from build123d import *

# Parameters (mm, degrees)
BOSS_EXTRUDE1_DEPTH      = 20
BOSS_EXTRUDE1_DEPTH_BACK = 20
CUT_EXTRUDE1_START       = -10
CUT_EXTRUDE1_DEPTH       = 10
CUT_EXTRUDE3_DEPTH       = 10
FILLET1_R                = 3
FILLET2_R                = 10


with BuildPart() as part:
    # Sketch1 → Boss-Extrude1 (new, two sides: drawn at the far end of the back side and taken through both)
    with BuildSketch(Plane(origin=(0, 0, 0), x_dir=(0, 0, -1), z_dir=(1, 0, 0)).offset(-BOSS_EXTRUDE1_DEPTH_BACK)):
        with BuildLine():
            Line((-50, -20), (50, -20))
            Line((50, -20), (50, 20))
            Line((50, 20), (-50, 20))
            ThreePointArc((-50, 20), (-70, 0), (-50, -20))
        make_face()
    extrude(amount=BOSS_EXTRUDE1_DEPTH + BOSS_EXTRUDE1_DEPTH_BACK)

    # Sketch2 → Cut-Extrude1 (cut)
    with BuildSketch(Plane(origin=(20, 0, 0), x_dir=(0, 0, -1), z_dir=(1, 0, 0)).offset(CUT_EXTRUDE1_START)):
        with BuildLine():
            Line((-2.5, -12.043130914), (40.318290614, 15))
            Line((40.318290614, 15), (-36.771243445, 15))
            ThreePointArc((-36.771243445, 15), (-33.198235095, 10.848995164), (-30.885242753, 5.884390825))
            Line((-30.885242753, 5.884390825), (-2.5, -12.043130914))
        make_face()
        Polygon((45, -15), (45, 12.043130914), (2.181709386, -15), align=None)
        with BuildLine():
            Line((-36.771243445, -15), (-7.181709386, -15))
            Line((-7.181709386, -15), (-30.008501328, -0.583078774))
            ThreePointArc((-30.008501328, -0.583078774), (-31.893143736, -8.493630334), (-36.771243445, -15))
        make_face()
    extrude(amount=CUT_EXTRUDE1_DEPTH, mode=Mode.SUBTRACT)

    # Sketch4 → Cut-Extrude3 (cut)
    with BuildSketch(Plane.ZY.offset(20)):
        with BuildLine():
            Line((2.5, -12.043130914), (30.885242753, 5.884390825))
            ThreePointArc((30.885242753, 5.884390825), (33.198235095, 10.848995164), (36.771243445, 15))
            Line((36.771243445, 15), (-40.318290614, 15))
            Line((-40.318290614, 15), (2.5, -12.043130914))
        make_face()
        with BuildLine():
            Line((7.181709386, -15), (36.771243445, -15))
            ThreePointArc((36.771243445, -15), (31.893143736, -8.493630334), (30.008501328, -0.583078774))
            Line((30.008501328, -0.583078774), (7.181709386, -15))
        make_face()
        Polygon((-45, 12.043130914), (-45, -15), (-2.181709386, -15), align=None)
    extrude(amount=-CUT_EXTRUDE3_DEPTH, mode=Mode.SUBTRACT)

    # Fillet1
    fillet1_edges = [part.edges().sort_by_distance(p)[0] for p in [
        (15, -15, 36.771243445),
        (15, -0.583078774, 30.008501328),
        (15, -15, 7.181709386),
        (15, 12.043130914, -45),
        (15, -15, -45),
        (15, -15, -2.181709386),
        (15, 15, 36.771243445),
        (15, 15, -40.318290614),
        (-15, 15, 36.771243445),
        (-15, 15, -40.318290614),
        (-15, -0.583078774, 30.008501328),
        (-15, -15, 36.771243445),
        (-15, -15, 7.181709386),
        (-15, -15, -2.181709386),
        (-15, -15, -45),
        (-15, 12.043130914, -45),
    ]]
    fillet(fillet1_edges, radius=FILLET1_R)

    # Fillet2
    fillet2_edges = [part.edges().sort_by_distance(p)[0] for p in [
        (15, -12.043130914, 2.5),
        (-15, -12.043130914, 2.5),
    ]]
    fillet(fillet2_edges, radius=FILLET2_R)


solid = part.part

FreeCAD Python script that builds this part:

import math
import FreeCAD as App
import Part
import Sketcher
from FreeCAD import Vector


def edges_at(feature, points):
    """Names of the edges that pass closest to the given points."""
    edges = feature.Shape.Edges
    near = lambda p: min(range(len(edges)), key=lambda i: edges[i].distToShape(Part.Vertex(*p))[0])
    return sorted({f"Edge{near(p) + 1}" for p in points})


def add_polygon(sketch, points):
    """Adds a closed chain of lines whose ends are joined by coincident constraints."""
    first, n = sketch.GeometryCount, len(points)
    for a, b in zip(points, points[1:] + points[:1]):
        sketch.addGeometry(Part.LineSegment(App.Vector(*a, 0), App.Vector(*b, 0)), False)
    for i in range(n):
        sketch.addConstraint(Sketcher.Constraint("Coincident", first + i, 2, first + (i + 1) % n, 1))

doc = App.newDocument("Part")
body = doc.addObject("PartDesign::Body", "Body")

# Sketch on YZ plane
sketch1 = doc.addObject("Sketcher::SketchObject", "Sketch")
body.addObject(sketch1)
sketch1.AttachmentSupport = (doc.YZ_Plane, [""])
sketch1.MapMode = "FlatFace"
sketch1.addGeometry([
    Part.LineSegment(Vector(-20, 50, 0), Vector(-20, -50, 0)),
    Part.LineSegment(Vector(-20, -50, 0), Vector(20, -50, 0)),
    Part.LineSegment(Vector(20, -50, 0), Vector(20, 50, 0)),
    Part.ArcOfCircle(Part.Circle(Vector(0, 50, 0), Vector(0, 0, 1), 20), math.radians(0), math.radians(180)),
], False)
sketch1.addConstraint([
    Sketcher.Constraint("Coincident", 0, 2, 1, 1),
    Sketcher.Constraint("Coincident", 1, 2, 2, 1),
    Sketcher.Constraint("Tangent", 2, 2, 3, 1),
    Sketcher.Constraint("Tangent", 3, 2, 0, 1),
    Sketcher.Constraint("Vertical", 0),
    Sketcher.Constraint("Horizontal", 1),
    Sketcher.Constraint("Vertical", 2),
    Sketcher.Constraint("Symmetric", 0, 2, 2, 2, -1, 1),
    Sketcher.Constraint("Radius", 3, 20.0),
    Sketcher.Constraint("DistanceY", 0, 2, 0, 1, 100.0),
])
pad1 = doc.addObject("PartDesign::Pad", "Pad")
body.addObject(pad1)
pad1.Profile = sketch1
pad1.Type = "TwoLengths"
pad1.Length = 20
pad1.Length2 = 20

# Sketch on YZ plane
sketch2 = doc.addObject("Sketcher::SketchObject", "Sketch001")
body.addObject(sketch2)
sketch2.AttachmentSupport = (doc.YZ_Plane, [""])
sketch2.MapMode = "FlatFace"
sketch2.AttachmentOffset = App.Placement(Vector(0, 0, 10), App.Rotation())
sketch2.addGeometry(Part.LineSegment(Vector(-12.043131, 2.5, 0), Vector(15, -40.318291, 0)), False)  # 0
sketch2.addGeometry(Part.LineSegment(Vector(15, -40.318291, 0), Vector(15, 36.771243, 0)), False)  # 1
sketch2.addGeometry(Part.ArcOfCircle(Part.Circle(Vector(0, 50, 0), Vector(0, 0, 1), 20), math.radians(-72.889256), math.radians(-41.409622)), False)  # 2
sketch2.addGeometry(Part.LineSegment(Vector(5.884391, 30.885243, 0), Vector(-12.043131, 2.5, 0)), False)  # 3
add_polygon(sketch2, [(-15, -45), (12.043131, -45), (-15, -2.181709)])  # lines 4-6
sketch2.addGeometry(Part.LineSegment(Vector(-15, 36.771243, 0), Vector(-15, 7.181709, 0)), False)  # 7
sketch2.addGeometry(Part.LineSegment(Vector(-15, 7.181709, 0), Vector(-0.583079, 30.008501, 0)), False)  # 8
sketch2.addGeometry(Part.ArcOfCircle(Part.Circle(Vector(0, 50, 0), Vector(0, 0, 1), 20), math.radians(-138.590378), math.radians(-91.670634)), False)  # 9
sketch2.addConstraint([
    Sketcher.Constraint("Coincident", 0, 2, 1, 1),
    Sketcher.Constraint("Coincident", 1, 2, 2, 2),
    Sketcher.Constraint("Coincident", 2, 1, 3, 1),
    Sketcher.Constraint("Coincident", 3, 2, 0, 1),
    Sketcher.Constraint("Coincident", 7, 2, 8, 1),
    Sketcher.Constraint("Coincident", 8, 2, 9, 2),
    Sketcher.Constraint("Coincident", 9, 1, 7, 1),
    Sketcher.Constraint("Vertical", 1),
    Sketcher.Constraint("Horizontal", 4),
    Sketcher.Constraint("Vertical", 6),
    Sketcher.Constraint("Vertical", 7),
    Sketcher.Constraint("Coincident", 9, 3, 2, 3),
    Sketcher.Constraint("Equal", 2, 9),
    Sketcher.Constraint("Symmetric", 1, 2, 9, 1, -2),
    Sketcher.Constraint("Parallel", 0, 5),
    Sketcher.Constraint("Parallel", 3, 8),
    Sketcher.Constraint("Vertical", 6, 2, 7, 2),
    Sketcher.Constraint("Equal", 0, 5),
    Sketcher.Constraint("Radius", 2, 20.0),
    Sketcher.Constraint("DistanceY", -1, 1, 2, 3, 50.0),
    Sketcher.Constraint("DistanceX", -1, 1, 0, 2, 15.0),
    Sketcher.Constraint("DistanceY", 4, 2, -1, 1, 45.0),
    Sketcher.Constraint("DistanceY", -1, 1, 3, 2, 2.5),
    Sketcher.Constraint("DistanceY", 2, 1, 1, 2, 5.886001),
    Sketcher.Constraint("DistanceX", 4, 1, 4, 2, 27.043131),
    Sketcher.Constraint("DistanceY", 6, 2, 6, 1, 42.818291),
    Sketcher.Constraint("DistanceY", -1, 1, 8, 2, 30.008501),
])
pocket1 = doc.addObject("PartDesign::Pocket", "Pocket")
body.addObject(pocket1)
pocket1.Profile = sketch2
pocket1.Length = 10
pocket1.Reversed = True

# Sketch on YZ plane
sketch3 = doc.addObject("Sketcher::SketchObject", "Sketch002")
body.addObject(sketch3)
sketch3.AttachmentSupport = (doc.YZ_Plane, [""])
sketch3.MapMode = "FlatFace"
sketch3.AttachmentOffset = App.Placement(Vector(0, 0, -20), App.Rotation())
sketch3.addGeometry(Part.LineSegment(Vector(-12.043131, 2.5, 0), Vector(5.884391, 30.885243, 0)), False)  # 0
sketch3.addGeometry(Part.ArcOfCircle(Part.Circle(Vector(0, 50, 0), Vector(0, 0, 1), 20), math.radians(-72.889256), math.radians(-41.409622)), False)  # 1
sketch3.addGeometry(Part.LineSegment(Vector(15, 36.771243, 0), Vector(15, -40.318291, 0)), False)  # 2
sketch3.addGeometry(Part.LineSegment(Vector(15, -40.318291, 0), Vector(-12.043131, 2.5, 0)), False)  # 3
sketch3.addGeometry(Part.LineSegment(Vector(-15, 7.181709, 0), Vector(-15, 36.771243, 0)), False)  # 4
sketch3.addGeometry(Part.ArcOfCircle(Part.Circle(Vector(0, 50, 0), Vector(0, 0, 1), 20), math.radians(-138.590378), math.radians(-91.670634)), False)  # 5
sketch3.addGeometry(Part.LineSegment(Vector(-0.583079, 30.008501, 0), Vector(-15, 7.181709, 0)), False)  # 6
add_polygon(sketch3, [(12.043131, -45), (-15, -45), (-15, -2.181709)])  # lines 7-9
sketch3.addConstraint([
    Sketcher.Constraint("Coincident", 0, 2, 1, 1),
    Sketcher.Constraint("Coincident", 1, 2, 2, 1),
    Sketcher.Constraint("Coincident", 2, 2, 3, 1),
    Sketcher.Constraint("Coincident", 3, 2, 0, 1),
    Sketcher.Constraint("Coincident", 4, 2, 5, 1),
    Sketcher.Constraint("Coincident", 5, 2, 6, 1),
    Sketcher.Constraint("Coincident", 6, 2, 4, 1),
    Sketcher.Constraint("Vertical", 2),
    Sketcher.Constraint("Vertical", 4),
    Sketcher.Constraint("Horizontal", 7),
    Sketcher.Constraint("Vertical", 8),
    Sketcher.Constraint("Coincident", 5, 3, 1, 3),
    Sketcher.Constraint("Equal", 1, 5),
    Sketcher.Constraint("Symmetric", 1, 2, 4, 2, -2),
    Sketcher.Constraint("Parallel", 0, 6),
    Sketcher.Constraint("Parallel", 3, 9),
    Sketcher.Constraint("Vertical", 6, 2, 7, 2),
    Sketcher.Constraint("Equal", 3, 9),
    Sketcher.Constraint("Radius", 1, 20.0),
    Sketcher.Constraint("DistanceY", -1, 1, 1, 3, 50.0),
    Sketcher.Constraint("DistanceX", -1, 1, 1, 2, 15.0),
    Sketcher.Constraint("DistanceY", 7, 2, -1, 1, 45.0),
    Sketcher.Constraint("DistanceY", -1, 1, 3, 2, 2.5),
    Sketcher.Constraint("DistanceY", 0, 2, 1, 2, 5.886001),
    Sketcher.Constraint("DistanceX", 7, 2, 7, 1, 27.043131),
    Sketcher.Constraint("DistanceY", 8, 1, 8, 2, 42.818291),
    Sketcher.Constraint("DistanceY", -1, 1, 5, 2, 30.008501),
])
pocket2 = doc.addObject("PartDesign::Pocket", "Pocket001")
body.addObject(pocket2)
pocket2.Profile = sketch3
pocket2.Length = 10
pocket2.Reversed = True
doc.recompute()

fillet = doc.addObject("PartDesign::Fillet", "Fillet")
body.addObject(fillet)
fillet.Base = (pocket2, edges_at(pocket2, [
    (15, -15, 36.771),
    (15, -0.583, 30.009),
    (15, -15, 7.182),
    (15, 12.043, -45),
    (15, -15, -45),
    (15, -15, -2.182),
    (15, 15, 36.771),
    (15, 15, -40.318),
    (-15, 15, 36.771),
    (-15, 15, -40.318),
    (-15, -0.583, 30.009),
    (-15, -15, 36.771),
    (-15, -15, 7.182),
    (-15, -15, -2.182),
    (-15, -15, -45),
    (-15, 12.043, -45),
]))
fillet.Radius = 3
doc.recompute()

fillet2 = doc.addObject("PartDesign::Fillet", "Fillet001")
body.addObject(fillet2)
fillet2.Base = (fillet, edges_at(fillet, [(15, -12.043, 2.5), (-15, -12.043, 2.5)]))
fillet2.Radius = 10

doc.recompute()
